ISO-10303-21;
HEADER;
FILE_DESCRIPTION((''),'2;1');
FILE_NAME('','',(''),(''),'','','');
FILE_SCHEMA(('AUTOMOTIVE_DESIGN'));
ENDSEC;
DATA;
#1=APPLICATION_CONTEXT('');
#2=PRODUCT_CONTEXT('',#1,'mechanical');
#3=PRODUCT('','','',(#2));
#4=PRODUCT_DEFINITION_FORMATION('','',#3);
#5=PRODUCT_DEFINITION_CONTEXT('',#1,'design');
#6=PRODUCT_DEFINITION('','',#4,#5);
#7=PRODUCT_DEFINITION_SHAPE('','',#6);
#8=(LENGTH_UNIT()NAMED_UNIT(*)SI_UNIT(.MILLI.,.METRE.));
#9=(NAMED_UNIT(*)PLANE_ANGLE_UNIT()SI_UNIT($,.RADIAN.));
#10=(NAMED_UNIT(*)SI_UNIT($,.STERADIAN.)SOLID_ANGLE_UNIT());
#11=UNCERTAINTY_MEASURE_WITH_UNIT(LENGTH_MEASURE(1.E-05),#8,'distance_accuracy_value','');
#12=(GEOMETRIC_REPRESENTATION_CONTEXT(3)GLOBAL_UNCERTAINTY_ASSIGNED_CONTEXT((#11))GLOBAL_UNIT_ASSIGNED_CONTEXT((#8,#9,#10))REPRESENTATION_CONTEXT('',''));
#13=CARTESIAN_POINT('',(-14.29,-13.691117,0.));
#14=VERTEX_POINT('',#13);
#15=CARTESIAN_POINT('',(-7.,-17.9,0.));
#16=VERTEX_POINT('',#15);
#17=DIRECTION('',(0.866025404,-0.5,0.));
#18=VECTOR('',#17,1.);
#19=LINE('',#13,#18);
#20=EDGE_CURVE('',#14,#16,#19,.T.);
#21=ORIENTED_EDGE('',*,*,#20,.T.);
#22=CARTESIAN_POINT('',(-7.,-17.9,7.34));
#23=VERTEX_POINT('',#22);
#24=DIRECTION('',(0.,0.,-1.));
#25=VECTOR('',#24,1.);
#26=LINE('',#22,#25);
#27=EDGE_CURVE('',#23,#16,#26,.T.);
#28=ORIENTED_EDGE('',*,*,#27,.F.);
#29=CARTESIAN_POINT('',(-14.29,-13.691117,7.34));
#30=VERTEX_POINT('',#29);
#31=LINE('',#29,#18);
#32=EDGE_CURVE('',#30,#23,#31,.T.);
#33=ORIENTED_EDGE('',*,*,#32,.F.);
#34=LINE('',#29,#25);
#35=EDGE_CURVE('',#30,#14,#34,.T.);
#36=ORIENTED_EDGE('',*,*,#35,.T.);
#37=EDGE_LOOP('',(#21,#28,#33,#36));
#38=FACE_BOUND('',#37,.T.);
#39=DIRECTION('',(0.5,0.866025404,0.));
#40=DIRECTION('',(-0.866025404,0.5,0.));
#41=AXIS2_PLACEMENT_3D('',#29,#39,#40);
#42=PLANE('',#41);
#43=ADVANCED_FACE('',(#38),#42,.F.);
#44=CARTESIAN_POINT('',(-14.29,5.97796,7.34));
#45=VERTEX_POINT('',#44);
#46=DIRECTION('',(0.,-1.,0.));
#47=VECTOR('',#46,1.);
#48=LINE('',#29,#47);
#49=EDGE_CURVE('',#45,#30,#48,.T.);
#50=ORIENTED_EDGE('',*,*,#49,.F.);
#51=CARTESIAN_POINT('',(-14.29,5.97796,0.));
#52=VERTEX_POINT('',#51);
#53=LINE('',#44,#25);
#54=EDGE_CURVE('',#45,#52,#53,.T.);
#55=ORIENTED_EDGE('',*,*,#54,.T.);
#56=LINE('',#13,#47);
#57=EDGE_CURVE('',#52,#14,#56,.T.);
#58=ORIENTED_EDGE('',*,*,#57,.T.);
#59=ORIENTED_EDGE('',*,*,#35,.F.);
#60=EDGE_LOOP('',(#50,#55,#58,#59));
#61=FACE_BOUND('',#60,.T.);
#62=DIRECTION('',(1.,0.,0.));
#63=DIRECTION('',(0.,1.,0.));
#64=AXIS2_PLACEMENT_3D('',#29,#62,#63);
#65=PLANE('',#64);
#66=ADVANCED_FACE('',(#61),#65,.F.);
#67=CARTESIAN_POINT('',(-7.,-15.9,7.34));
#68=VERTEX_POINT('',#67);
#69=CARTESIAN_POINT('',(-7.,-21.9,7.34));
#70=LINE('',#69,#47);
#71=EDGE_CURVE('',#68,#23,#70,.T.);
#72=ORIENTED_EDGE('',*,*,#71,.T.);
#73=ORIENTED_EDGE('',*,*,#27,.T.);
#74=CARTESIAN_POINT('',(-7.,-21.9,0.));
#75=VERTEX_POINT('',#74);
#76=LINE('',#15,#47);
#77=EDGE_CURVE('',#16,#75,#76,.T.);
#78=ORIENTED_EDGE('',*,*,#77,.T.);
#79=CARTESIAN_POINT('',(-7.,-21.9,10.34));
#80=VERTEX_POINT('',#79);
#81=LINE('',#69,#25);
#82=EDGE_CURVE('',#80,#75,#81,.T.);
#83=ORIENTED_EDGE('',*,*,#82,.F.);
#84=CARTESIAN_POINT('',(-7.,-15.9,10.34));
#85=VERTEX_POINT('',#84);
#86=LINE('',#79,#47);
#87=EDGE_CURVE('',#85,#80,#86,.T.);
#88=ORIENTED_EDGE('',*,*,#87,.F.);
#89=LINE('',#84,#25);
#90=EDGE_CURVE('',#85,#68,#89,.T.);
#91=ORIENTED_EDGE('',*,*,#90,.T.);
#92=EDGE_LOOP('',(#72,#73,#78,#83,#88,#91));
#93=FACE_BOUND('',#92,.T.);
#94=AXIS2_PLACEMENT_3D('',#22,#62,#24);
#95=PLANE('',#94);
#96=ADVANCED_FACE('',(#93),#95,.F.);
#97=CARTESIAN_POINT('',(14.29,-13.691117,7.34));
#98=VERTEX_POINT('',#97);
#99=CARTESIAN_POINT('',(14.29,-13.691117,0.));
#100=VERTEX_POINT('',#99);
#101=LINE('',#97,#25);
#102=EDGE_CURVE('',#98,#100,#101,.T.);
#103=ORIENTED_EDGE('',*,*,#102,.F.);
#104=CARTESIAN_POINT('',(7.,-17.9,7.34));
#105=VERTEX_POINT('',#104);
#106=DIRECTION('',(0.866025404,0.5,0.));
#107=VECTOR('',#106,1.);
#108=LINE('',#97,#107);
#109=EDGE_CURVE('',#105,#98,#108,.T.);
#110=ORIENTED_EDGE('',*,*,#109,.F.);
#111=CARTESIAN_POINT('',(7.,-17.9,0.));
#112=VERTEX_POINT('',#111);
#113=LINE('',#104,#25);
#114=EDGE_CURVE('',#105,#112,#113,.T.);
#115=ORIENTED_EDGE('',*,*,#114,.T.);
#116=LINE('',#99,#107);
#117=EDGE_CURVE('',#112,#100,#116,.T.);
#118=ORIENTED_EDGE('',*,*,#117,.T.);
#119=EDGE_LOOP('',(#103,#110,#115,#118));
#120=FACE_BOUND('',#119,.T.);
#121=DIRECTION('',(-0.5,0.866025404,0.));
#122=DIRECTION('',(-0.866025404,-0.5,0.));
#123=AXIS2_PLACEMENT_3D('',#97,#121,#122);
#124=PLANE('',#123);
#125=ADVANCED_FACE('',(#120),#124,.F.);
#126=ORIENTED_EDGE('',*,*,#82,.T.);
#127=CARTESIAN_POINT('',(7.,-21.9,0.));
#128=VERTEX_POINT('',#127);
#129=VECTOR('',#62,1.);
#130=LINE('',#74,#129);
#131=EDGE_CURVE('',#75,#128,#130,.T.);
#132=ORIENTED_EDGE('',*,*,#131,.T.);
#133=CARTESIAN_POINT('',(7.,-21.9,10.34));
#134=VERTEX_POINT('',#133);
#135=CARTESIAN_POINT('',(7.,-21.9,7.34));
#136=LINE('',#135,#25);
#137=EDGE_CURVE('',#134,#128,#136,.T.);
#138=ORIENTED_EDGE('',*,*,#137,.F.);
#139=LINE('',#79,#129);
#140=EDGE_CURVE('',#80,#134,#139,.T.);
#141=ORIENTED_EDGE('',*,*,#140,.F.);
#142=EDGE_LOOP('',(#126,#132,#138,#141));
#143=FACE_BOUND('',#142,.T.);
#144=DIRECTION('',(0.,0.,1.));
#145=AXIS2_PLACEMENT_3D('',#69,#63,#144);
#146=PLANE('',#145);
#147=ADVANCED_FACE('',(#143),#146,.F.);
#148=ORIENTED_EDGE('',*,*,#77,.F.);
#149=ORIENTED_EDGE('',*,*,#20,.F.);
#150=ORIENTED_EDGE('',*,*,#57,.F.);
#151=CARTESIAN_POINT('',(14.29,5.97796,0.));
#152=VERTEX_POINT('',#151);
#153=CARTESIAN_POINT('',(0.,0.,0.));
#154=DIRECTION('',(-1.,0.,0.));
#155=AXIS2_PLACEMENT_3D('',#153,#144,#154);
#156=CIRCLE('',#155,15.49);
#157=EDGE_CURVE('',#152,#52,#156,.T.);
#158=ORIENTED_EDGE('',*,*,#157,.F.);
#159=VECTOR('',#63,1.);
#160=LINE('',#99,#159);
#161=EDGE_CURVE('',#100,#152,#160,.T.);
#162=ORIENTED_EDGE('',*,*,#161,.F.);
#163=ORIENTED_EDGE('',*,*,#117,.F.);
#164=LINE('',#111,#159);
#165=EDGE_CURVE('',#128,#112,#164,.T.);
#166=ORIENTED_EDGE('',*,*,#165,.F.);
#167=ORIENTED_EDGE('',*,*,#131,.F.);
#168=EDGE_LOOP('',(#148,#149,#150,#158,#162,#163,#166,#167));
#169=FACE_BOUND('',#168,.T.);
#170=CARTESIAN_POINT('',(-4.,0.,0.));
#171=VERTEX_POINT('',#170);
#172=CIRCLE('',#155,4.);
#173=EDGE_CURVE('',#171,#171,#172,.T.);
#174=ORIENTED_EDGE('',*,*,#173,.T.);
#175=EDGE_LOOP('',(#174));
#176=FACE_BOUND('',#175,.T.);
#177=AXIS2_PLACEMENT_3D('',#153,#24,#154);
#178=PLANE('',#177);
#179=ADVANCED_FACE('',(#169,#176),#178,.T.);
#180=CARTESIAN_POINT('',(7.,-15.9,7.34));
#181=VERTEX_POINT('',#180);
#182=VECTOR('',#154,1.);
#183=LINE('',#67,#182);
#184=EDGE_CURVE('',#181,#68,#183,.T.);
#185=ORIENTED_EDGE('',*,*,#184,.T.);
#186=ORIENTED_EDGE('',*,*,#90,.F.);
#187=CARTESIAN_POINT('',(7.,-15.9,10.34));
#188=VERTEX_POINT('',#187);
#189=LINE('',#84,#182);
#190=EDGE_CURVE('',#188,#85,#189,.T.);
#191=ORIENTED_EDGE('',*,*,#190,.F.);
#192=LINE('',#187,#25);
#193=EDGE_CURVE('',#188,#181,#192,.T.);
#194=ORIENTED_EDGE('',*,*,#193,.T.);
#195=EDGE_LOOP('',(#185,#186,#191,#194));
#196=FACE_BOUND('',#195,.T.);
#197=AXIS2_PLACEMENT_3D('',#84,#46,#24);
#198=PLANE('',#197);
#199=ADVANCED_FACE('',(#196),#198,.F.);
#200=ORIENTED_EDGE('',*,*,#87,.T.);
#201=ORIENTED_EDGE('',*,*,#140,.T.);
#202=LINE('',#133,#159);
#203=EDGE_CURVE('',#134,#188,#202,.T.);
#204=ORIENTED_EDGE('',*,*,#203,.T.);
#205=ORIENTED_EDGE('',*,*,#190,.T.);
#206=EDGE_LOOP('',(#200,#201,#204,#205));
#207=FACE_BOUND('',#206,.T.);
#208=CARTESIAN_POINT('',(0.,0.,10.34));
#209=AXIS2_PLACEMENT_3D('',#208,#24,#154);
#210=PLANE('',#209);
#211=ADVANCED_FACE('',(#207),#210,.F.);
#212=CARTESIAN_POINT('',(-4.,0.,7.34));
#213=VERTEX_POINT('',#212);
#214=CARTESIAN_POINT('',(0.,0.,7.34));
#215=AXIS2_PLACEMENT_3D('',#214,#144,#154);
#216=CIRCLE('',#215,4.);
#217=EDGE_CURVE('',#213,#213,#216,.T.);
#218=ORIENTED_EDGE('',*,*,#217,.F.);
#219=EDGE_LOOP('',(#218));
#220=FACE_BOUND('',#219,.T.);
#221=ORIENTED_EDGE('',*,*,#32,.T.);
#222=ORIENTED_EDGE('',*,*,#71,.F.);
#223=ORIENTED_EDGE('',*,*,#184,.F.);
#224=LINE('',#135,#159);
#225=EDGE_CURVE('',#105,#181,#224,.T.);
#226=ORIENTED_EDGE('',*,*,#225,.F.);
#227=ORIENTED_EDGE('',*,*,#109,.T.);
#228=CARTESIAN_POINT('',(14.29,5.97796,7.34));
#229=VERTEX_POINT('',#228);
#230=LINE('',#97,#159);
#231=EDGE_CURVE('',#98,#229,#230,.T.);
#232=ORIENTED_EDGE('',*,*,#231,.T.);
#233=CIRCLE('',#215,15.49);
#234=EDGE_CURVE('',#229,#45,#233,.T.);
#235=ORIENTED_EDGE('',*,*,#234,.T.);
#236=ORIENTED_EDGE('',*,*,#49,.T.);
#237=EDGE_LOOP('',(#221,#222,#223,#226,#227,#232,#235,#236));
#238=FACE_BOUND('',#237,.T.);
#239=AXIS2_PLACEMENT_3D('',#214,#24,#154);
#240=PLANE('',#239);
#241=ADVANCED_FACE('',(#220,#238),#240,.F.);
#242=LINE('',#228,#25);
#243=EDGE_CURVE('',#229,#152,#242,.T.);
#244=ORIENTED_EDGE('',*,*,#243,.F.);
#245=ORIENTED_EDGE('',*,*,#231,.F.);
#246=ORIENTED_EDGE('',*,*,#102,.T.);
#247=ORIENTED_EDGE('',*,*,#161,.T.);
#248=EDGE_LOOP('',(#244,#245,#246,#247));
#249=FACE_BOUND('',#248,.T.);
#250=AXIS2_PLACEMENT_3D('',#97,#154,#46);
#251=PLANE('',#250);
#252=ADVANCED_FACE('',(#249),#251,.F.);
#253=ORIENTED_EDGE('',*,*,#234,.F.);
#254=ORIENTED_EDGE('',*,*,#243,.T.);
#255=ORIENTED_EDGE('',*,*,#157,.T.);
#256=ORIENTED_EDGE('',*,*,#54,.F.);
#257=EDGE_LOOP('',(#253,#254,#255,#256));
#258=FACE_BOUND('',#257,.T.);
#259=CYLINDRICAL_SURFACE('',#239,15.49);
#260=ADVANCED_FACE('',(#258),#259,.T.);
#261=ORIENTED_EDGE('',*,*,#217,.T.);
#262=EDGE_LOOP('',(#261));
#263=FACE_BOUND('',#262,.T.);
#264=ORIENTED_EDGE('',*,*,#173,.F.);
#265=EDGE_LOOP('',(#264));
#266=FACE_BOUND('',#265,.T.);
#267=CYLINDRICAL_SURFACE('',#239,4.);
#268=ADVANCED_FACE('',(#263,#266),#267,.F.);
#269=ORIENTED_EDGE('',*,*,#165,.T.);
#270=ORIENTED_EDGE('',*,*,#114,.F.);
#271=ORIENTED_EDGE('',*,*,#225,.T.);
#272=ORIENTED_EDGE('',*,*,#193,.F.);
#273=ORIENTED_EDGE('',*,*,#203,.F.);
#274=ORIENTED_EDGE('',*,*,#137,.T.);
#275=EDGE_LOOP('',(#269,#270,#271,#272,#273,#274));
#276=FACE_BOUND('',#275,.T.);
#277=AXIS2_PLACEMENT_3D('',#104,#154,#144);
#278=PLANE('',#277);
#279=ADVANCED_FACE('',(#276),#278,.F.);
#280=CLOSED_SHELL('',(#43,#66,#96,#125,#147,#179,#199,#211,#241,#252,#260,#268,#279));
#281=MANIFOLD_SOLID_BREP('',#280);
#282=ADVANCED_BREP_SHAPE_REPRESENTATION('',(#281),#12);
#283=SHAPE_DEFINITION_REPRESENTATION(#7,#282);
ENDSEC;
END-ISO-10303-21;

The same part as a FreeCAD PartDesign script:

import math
import FreeCAD as App
import Part
import Sketcher
Q = App.Units.Quantity


def add_polygon(sketch, points):
    """Adds a closed chain of lines whose ends are joined by coincident constraints."""
    first, n = sketch.GeometryCount, len(points)
    for a, b in zip(points, points[1:] + points[:1]):
        sketch.addGeometry(Part.LineSegment(App.Vector(*a, 0), App.Vector(*b, 0)), False)
    for i in range(n):
        sketch.addConstraint(Sketcher.Constraint("Coincident", first + i, 2, first + (i + 1) % n, 1))

doc = App.newDocument("Part")
body = doc.addObject("PartDesign::Body", "Body")

sketch1 = body.newObject("Sketcher::SketchObject", "Sketch")
sketch1.AttachmentSupport = (doc.getObject("XY_Plane"), [""])
sketch1.MapMode = "FlatFace"
sketch1.addGeometry([
    Part.LineSegment(App.Vector(-14.3, 6, 0), App.Vector(-14.3, -13.7, 0)),
    Part.LineSegment(App.Vector(-14.3, -13.7, 0), App.Vector(-7, -17.9, 0)),
    Part.LineSegment(App.Vector(-7, -17.9, 0), App.Vector(-7, -21.9, 0)),
    Part.LineSegment(App.Vector(-7, -21.9, 0), App.Vector(7, -21.9, 0)),
    Part.LineSegment(App.Vector(7, -21.9, 0), App.Vector(7, -17.9, 0)),
    Part.LineSegment(App.Vector(7, -17.9, 0), App.Vector(14.3, -13.7, 0)),
    Part.LineSegment(App.Vector(14.3, -13.7, 0), App.Vector(14.3, 6, 0)),
    Part.ArcOfCircle(Part.Circle(App.Vector(0, 0, 0), App.Vector(0, 0, 1), 15.5), math.radians(23), math.radians(157)),
    Part.Circle(App.Vector(0, 0, 0), App.Vector(0, 0, 1), 4),
], False)
sketch1.addConstraint([
    Sketcher.Constraint("Coincident", 0, 2, 1, 1),
    Sketcher.Constraint("Coincident", 1, 2, 2, 1),
    Sketcher.Constraint("Coincident", 2, 2, 3, 1),
    Sketcher.Constraint("Coincident", 3, 2, 4, 1),
    Sketcher.Constraint("Coincident", 4, 2, 5, 1),
    Sketcher.Constraint("Coincident", 5, 2, 6, 1),
    Sketcher.Constraint("Coincident", 6, 2, 7, 1),
    Sketcher.Constraint("Coincident", 7, 2, 0, 1),
    Sketcher.Constraint("Vertical", 0),
    Sketcher.Constraint("Vertical", 2),
    Sketcher.Constraint("Horizontal", 3),
    Sketcher.Constraint("Vertical", 4),
    Sketcher.Constraint("Vertical", 6),
    Sketcher.Constraint("Coincident", 7, 3, -1, 1),
    Sketcher.Constraint("Coincident", 8, 3, -1, 1),
    Sketcher.Constraint("Symmetric", 1, 2, 4, 2, -2),
    Sketcher.Constraint("Symmetric", 0, 2, 5, 2, -2),
    Sketcher.Constraint("Diameter", 8, 8.0),
    Sketcher.Constraint("DistanceX", 3, 1, 3, 2, 14.0),
    Sketcher.Constraint("DistanceY", 2, 2, 2, 1, 4.0),
    Sketcher.Constraint("Angle", 1, Q("-30 deg")),
    Sketcher.Constraint("Radius", 7, 15.49),
    Sketcher.Constraint("DistanceY", 1, 2, -1, 1, 17.9),
    Sketcher.Constraint("DistanceX", 0, 2, -1, 1, 14.29),
])
pad1 = body.newObject("PartDesign::Pad", "Pad")
pad1.Profile = sketch1
pad1.Length = 7.34

sketch2 = body.newObject("Sketcher::SketchObject", "Sketch001")
sketch2.AttachmentSupport = (doc.getObject("XY_Plane"), [""])
sketch2.MapMode = "FlatFace"
sketch2.AttachmentOffset = App.Placement(App.Vector(0, 0, 7.34), App.Rotation())
add_polygon(sketch2, [(-7, -16), (-7, -22), (7, -22), (7, -16)])
sketch2.addConstraint([
    Sketcher.Constraint("Vertical", 0),
    Sketcher.Constraint("Horizontal", 1),
    Sketcher.Constraint("Vertical", 2),
    Sketcher.Constraint("Horizontal", 3),
    Sketcher.Constraint("DistanceX", 1, 1, 1, 2, 14.0),
    Sketcher.Constraint("DistanceY", 0, 2, 0, 1, 6.0),
    Sketcher.Constraint("DistanceX", 0, 2, -1, 1, 7.0),
    Sketcher.Constraint("DistanceY", 0, 2, -1, 1, 21.9),
])
pad2 = body.newObject("PartDesign::Pad", "Pad001")
pad2.Profile = sketch2
pad2.Length = 3

doc.recompute()
